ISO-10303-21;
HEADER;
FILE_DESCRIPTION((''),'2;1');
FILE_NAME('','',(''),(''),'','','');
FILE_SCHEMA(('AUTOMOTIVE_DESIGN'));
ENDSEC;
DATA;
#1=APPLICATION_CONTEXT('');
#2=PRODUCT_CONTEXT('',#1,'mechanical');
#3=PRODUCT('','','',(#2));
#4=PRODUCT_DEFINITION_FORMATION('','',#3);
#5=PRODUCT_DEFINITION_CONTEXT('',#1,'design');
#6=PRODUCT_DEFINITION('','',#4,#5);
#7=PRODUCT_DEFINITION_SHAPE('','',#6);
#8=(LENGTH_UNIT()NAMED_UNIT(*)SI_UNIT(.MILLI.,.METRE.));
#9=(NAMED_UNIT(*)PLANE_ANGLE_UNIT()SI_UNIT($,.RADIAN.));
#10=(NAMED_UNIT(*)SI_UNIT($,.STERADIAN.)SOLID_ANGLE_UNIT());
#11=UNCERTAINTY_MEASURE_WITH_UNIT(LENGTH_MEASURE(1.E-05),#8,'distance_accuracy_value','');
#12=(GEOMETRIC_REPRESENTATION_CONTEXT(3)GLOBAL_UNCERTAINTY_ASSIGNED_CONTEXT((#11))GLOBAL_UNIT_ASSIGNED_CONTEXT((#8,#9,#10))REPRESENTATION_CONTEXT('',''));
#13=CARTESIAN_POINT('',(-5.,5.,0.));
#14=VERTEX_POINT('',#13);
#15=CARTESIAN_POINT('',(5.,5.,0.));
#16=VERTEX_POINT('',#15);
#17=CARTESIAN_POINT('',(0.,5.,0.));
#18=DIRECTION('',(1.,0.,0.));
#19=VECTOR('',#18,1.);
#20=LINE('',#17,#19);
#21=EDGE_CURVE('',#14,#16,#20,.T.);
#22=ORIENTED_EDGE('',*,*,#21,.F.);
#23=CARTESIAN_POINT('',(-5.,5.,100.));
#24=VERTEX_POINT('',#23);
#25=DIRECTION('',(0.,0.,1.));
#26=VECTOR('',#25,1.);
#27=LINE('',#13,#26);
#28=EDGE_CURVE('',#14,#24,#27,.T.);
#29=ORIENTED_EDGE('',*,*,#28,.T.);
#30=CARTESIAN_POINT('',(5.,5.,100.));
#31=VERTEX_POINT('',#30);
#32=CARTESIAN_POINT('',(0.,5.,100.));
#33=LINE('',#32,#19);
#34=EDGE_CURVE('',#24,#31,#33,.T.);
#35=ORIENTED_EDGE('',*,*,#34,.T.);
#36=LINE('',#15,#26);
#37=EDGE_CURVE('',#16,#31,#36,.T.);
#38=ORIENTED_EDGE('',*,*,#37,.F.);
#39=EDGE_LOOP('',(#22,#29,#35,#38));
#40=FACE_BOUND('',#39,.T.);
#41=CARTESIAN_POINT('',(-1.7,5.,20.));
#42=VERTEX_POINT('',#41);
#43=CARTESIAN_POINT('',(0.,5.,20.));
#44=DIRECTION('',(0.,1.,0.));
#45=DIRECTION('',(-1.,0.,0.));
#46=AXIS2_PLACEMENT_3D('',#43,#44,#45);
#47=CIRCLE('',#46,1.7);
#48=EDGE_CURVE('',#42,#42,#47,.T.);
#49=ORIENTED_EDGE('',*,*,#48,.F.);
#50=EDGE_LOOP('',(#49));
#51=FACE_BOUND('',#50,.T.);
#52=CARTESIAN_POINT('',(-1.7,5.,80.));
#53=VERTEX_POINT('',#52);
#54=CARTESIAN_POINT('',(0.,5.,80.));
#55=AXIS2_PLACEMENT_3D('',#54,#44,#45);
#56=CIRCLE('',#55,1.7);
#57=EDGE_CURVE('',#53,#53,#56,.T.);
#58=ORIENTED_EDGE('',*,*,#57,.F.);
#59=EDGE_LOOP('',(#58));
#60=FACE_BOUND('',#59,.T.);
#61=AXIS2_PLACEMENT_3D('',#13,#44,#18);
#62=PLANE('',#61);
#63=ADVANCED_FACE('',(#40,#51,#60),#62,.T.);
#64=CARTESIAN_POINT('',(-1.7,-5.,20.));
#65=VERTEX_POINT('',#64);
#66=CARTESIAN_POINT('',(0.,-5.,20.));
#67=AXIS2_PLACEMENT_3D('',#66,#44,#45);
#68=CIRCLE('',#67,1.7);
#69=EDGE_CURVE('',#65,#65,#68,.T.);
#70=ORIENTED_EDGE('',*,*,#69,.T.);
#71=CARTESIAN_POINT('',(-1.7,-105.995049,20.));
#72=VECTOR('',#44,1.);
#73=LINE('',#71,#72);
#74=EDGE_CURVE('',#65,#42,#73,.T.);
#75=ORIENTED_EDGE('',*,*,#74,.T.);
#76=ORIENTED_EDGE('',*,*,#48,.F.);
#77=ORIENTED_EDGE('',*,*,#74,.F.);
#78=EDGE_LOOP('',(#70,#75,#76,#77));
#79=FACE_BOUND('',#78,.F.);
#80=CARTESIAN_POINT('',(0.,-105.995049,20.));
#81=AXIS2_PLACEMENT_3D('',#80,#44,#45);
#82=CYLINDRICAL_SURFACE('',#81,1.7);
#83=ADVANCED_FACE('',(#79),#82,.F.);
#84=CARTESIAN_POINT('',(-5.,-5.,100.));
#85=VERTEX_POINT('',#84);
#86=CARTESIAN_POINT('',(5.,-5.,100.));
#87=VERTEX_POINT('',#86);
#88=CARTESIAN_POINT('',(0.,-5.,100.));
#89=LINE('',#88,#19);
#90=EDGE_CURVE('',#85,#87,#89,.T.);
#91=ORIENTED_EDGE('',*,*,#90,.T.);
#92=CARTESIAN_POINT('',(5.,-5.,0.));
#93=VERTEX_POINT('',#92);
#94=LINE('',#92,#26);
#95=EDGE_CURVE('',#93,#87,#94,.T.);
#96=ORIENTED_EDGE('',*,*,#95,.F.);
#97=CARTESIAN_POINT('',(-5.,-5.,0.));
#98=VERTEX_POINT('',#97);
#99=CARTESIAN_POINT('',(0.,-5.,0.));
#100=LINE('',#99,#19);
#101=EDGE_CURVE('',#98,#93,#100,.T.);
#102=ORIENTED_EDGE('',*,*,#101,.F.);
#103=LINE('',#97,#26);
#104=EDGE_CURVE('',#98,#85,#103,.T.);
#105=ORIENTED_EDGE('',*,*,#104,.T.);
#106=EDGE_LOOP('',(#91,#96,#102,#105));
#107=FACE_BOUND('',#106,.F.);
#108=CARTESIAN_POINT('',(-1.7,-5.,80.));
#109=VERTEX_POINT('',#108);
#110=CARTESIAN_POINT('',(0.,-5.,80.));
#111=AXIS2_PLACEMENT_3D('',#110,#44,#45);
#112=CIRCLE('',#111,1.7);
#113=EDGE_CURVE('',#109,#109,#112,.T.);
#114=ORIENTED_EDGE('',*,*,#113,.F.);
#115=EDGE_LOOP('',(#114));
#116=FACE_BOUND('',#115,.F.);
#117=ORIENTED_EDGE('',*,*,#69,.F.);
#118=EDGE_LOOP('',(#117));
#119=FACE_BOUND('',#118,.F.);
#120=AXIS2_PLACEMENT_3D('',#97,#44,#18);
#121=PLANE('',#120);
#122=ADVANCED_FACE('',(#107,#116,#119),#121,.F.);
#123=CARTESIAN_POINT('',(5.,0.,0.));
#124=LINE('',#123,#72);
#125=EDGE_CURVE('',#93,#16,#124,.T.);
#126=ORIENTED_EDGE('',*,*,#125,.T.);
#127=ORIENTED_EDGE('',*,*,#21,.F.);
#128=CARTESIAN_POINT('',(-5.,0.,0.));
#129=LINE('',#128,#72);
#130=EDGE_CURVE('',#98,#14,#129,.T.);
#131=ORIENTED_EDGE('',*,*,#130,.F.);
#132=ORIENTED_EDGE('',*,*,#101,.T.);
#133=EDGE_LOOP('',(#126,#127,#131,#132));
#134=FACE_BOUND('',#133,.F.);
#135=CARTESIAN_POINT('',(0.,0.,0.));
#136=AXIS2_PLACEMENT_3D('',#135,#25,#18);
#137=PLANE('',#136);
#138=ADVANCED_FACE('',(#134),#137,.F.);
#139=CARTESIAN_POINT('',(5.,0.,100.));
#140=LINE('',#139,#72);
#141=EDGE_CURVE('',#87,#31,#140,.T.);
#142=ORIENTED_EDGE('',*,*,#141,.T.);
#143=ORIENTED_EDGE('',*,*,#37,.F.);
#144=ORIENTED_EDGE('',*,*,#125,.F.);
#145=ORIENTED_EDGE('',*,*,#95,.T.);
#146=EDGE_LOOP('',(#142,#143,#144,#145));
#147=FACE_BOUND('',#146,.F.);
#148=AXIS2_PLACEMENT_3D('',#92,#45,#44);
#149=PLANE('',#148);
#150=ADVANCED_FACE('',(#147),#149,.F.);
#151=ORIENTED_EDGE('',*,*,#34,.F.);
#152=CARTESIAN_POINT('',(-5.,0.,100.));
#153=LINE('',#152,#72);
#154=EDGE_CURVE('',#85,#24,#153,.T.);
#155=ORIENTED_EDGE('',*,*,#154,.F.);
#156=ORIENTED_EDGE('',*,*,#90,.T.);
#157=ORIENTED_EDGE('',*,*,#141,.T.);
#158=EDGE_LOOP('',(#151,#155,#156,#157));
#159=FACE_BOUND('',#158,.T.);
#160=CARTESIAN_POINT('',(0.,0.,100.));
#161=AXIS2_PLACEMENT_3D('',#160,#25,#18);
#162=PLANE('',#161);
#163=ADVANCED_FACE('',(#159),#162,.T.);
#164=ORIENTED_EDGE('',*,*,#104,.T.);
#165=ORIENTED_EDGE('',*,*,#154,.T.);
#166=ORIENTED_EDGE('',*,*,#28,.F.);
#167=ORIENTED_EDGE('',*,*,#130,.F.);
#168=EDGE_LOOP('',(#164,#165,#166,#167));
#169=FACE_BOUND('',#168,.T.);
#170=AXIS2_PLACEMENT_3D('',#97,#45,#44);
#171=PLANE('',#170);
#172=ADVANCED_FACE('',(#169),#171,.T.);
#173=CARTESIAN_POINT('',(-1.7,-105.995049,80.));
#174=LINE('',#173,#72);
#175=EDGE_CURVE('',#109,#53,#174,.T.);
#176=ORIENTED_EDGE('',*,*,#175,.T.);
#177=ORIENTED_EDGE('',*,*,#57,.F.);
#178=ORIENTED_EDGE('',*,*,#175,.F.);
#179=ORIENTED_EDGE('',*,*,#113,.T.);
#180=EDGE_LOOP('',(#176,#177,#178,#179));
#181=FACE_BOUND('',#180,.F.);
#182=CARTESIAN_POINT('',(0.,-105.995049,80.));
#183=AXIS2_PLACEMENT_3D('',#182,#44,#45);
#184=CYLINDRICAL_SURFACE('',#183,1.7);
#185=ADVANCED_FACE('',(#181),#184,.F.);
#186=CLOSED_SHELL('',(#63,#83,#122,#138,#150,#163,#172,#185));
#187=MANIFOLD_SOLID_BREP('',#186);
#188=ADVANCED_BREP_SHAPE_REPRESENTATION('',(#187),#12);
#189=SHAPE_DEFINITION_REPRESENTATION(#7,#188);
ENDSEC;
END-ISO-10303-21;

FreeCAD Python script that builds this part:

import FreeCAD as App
import Part
import Sketcher
from FreeCAD import Vector

doc = App.newDocument("Part")
params = doc.addObject("Spreadsheet::Sheet", "Params")
for row, (alias, value) in enumerate([
    ("sketch1_width", "10 mm"),
    ("pad1_length", "100 mm"),
    ("sketch2_diameter", "3.4 mm"),
    ("hole_diameter", "3.4 mm"),
], start=1):
    params.set(f"A{row}", alias)
    params.set(f"B{row}", "=" + value)
    params.setAlias(f"B{row}", alias)

body = doc.addObject("PartDesign::Body", "Body")

sketch1 = doc.addObject("Sketcher::SketchObject", "Sketch")
body.addObject(sketch1)
sketch1.AttachmentSupport = (doc.XY_Plane, [""])
sketch1.MapMode = "FlatFace"
sketch1.addGeometry([
    Part.LineSegment(Vector(-5, 5, 0), Vector(-5, -5, 0)),
    Part.LineSegment(Vector(-5, -5, 0), Vector(5, -5, 0)),
    Part.LineSegment(Vector(5, -5, 0), Vector(5, 5, 0)),
    Part.LineSegment(Vector(5, 5, 0), Vector(-5, 5, 0)),
], False)
sketch1.addConstraint([
    Sketcher.Constraint("Coincident", 0, 2, 1, 1),
    Sketcher.Constraint("Coincident", 1, 2, 2, 1),
    Sketcher.Constraint("Coincident", 2, 2, 3, 1),
    Sketcher.Constraint("Coincident", 3, 2, 0, 1),
    Sketcher.Constraint("Vertical", 0),
    Sketcher.Constraint("Horizontal", 1),
    Sketcher.Constraint("Vertical", 2),
    Sketcher.Constraint("Horizontal", 3),
    Sketcher.Constraint("Symmetric", 0, 2, 2, 2, -1, 1),
    Sketcher.Constraint("Equal", 3, 0),
    Sketcher.Constraint("DistanceX", 1, 1, 1, 2, 10.0),
])
sketch1.setExpression("Constraints[10]", "Params.sketch1_width")
pad1 = doc.addObject("PartDesign::Pad", "Pad")
body.addObject(pad1)
pad1.Profile = sketch1
pad1.setExpression("Length", "Params.pad1_length")

sketch2 = doc.addObject("Sketcher::SketchObject", "Sketch001")
body.addObject(sketch2)
sketch2.AttachmentSupport = (doc.XZ_Plane, [""])
sketch2.MapMode = "FlatFace"
sketch2.AttachmentOffset = App.Placement(Vector(0, 0, 5), App.Rotation())
sketch2.addGeometry([
    Part.Circle(Vector(0, 80, 0), Vector(0, 0, 1), 1.7),
    Part.Circle(Vector(0, 20, 0), Vector(0, 0, 1), 1.7),
], False)
sketch2.addConstraint([
    Sketcher.Constraint("Equal", 0, 1),
    Sketcher.Constraint("PointOnObject", 0, 3, -2),
    Sketcher.Constraint("PointOnObject", 1, 3, -2),
    Sketcher.Constraint("Diameter", 0, 3.4),
    Sketcher.Constraint("DistanceY", -1, 1, 0, 3, 80.0),
    Sketcher.Constraint("DistanceY", -1, 1, 1, 3, 20.0),
])
sketch2.setExpression("Constraints[3]", "Params.sketch2_diameter")
doc.recompute()
hole = doc.addObject("PartDesign::Hole", "Hole")
body.addObject(hole)
hole.Profile = sketch2
hole.ThreadType = "None"
hole.setExpression("Diameter", "Params.hole_diameter")
hole.DepthType = "ThroughAll"

doc.recompute()
